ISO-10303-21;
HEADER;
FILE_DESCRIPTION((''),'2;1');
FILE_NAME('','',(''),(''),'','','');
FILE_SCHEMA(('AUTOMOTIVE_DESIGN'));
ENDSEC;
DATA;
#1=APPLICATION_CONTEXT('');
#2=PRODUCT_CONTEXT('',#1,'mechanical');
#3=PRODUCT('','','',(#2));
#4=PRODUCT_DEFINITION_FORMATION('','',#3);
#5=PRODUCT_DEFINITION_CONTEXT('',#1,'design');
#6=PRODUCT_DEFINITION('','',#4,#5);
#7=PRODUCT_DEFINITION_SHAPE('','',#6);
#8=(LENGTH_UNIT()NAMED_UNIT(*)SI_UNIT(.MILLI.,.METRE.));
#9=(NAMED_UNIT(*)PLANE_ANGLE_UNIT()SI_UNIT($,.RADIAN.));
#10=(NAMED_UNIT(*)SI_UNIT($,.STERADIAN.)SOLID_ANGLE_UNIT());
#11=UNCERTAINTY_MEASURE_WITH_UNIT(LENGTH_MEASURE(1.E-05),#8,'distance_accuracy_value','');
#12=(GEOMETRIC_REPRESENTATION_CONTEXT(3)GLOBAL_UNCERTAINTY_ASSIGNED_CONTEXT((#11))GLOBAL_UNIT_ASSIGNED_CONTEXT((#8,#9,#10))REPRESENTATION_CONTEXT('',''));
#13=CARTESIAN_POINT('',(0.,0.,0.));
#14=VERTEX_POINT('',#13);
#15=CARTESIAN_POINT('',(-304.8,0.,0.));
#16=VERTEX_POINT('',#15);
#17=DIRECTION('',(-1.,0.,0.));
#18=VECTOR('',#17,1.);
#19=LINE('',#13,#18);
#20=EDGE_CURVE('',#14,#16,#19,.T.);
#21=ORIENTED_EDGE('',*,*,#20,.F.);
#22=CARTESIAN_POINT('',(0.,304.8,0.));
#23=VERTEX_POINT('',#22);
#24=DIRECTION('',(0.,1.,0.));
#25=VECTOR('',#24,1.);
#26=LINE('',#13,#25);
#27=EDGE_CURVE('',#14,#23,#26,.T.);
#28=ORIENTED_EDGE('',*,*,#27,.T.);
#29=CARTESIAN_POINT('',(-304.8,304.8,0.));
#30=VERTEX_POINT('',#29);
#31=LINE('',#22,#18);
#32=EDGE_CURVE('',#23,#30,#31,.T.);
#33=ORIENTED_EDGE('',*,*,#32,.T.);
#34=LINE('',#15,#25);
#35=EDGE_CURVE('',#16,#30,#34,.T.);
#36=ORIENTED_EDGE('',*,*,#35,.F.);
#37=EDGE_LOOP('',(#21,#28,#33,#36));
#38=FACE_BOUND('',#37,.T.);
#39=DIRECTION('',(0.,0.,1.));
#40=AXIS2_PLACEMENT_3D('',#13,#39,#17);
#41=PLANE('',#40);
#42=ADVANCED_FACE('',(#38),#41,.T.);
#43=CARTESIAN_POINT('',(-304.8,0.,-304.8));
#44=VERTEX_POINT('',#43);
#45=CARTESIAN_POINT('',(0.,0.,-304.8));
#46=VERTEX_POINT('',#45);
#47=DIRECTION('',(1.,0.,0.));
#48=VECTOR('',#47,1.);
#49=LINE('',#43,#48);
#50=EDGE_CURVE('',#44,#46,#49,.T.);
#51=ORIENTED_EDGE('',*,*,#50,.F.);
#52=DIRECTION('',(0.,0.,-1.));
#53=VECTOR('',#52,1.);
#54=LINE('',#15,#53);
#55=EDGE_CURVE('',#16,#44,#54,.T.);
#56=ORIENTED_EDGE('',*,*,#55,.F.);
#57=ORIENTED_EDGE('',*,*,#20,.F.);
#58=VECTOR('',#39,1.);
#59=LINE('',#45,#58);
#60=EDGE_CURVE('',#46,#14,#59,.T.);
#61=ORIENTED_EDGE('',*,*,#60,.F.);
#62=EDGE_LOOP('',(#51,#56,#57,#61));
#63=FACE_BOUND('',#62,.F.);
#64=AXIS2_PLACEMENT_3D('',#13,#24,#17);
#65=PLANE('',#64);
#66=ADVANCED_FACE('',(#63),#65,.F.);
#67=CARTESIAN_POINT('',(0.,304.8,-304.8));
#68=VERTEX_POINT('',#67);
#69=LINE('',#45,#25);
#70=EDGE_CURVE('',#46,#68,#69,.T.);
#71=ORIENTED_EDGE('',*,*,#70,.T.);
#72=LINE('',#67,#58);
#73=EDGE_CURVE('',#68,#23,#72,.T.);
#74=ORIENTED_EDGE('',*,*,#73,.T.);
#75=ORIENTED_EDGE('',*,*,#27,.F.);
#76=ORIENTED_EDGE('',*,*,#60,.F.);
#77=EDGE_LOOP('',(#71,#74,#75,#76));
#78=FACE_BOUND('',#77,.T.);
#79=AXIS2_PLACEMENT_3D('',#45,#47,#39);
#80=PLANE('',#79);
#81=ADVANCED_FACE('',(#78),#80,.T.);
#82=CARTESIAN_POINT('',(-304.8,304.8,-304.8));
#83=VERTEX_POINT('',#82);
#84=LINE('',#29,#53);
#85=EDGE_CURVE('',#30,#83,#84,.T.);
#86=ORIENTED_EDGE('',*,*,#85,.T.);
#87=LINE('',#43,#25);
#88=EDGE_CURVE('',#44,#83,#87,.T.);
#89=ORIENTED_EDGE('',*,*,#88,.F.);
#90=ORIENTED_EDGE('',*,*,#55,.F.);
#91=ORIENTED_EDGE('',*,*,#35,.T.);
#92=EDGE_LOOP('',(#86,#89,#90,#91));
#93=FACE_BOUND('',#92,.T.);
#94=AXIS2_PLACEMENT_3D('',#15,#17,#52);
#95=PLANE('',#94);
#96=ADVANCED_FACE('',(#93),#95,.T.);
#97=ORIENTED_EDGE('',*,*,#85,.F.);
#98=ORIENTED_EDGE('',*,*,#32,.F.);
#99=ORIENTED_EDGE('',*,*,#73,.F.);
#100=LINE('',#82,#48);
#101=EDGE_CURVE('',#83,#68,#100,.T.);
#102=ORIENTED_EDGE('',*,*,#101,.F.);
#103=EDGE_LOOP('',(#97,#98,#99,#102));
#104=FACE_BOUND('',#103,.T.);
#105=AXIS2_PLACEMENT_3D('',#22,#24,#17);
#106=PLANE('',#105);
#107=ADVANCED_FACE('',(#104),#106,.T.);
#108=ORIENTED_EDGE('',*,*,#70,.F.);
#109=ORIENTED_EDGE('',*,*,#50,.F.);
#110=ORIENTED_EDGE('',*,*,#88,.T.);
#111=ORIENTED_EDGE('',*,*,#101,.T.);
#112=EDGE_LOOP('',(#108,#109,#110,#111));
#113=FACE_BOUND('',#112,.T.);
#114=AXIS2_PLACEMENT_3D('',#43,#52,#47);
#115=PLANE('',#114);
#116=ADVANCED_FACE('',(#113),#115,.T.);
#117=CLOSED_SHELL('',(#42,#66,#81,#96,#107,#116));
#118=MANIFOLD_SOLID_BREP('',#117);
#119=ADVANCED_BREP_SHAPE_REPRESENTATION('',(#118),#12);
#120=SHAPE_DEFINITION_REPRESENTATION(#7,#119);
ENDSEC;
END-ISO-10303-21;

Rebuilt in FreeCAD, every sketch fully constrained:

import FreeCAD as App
import Part
import Sketcher

V = App.Vector
Q = App.Units.Quantity

doc = App.newDocument("Part")
body = doc.addObject("PartDesign::Body", "Body")

sketch1 = body.newObject("Sketcher::SketchObject", "Sketch")
sketch1.AttachmentSupport = (doc.getObject("XZ_Plane"), [""])
sketch1.MapMode = "FlatFace"
sketch1.addGeometry(Part.LineSegment(V(-305, 0, 0), V(0, 0, 0)), False)
sketch1.addGeometry(Part.LineSegment(V(0, 0, 0), V(0, -305, 0)), False)
sketch1.addGeometry(Part.LineSegment(V(0, -305, 0), V(-305, -305, 0)), False)
sketch1.addGeometry(Part.LineSegment(V(-305, -305, 0), V(-305, 0, 0)), False)
sketch1.addConstraint(Sketcher.Constraint("Coincident", 0, 2, 1, 1))
sketch1.addConstraint(Sketcher.Constraint("Coincident", 1, 2, 2, 1))
sketch1.addConstraint(Sketcher.Constraint("Coincident", 2, 2, 3, 1))
sketch1.addConstraint(Sketcher.Constraint("Coincident", 3, 2, 0, 1))
sketch1.addConstraint(Sketcher.Constraint("Horizontal", 0))
sketch1.addConstraint(Sketcher.Constraint("Vertical", 1))
sketch1.addConstraint(Sketcher.Constraint("Horizontal", 2))
sketch1.addConstraint(Sketcher.Constraint("Vertical", 3))
sketch1.addConstraint(Sketcher.Constraint("Coincident", 0, 2, -1, 1))
sketch1.addConstraint(Sketcher.Constraint("Equal", 2, 1))
sketch1.addConstraint(Sketcher.Constraint("DistanceX", 0, 1, 0, 2, Q("12 in")))
pad1 = body.newObject("PartDesign::Pad", "Pad")
pad1.Profile = sketch1
pad1.Length = Q("12 in")
pad1.Reversed = True

doc.recompute()
